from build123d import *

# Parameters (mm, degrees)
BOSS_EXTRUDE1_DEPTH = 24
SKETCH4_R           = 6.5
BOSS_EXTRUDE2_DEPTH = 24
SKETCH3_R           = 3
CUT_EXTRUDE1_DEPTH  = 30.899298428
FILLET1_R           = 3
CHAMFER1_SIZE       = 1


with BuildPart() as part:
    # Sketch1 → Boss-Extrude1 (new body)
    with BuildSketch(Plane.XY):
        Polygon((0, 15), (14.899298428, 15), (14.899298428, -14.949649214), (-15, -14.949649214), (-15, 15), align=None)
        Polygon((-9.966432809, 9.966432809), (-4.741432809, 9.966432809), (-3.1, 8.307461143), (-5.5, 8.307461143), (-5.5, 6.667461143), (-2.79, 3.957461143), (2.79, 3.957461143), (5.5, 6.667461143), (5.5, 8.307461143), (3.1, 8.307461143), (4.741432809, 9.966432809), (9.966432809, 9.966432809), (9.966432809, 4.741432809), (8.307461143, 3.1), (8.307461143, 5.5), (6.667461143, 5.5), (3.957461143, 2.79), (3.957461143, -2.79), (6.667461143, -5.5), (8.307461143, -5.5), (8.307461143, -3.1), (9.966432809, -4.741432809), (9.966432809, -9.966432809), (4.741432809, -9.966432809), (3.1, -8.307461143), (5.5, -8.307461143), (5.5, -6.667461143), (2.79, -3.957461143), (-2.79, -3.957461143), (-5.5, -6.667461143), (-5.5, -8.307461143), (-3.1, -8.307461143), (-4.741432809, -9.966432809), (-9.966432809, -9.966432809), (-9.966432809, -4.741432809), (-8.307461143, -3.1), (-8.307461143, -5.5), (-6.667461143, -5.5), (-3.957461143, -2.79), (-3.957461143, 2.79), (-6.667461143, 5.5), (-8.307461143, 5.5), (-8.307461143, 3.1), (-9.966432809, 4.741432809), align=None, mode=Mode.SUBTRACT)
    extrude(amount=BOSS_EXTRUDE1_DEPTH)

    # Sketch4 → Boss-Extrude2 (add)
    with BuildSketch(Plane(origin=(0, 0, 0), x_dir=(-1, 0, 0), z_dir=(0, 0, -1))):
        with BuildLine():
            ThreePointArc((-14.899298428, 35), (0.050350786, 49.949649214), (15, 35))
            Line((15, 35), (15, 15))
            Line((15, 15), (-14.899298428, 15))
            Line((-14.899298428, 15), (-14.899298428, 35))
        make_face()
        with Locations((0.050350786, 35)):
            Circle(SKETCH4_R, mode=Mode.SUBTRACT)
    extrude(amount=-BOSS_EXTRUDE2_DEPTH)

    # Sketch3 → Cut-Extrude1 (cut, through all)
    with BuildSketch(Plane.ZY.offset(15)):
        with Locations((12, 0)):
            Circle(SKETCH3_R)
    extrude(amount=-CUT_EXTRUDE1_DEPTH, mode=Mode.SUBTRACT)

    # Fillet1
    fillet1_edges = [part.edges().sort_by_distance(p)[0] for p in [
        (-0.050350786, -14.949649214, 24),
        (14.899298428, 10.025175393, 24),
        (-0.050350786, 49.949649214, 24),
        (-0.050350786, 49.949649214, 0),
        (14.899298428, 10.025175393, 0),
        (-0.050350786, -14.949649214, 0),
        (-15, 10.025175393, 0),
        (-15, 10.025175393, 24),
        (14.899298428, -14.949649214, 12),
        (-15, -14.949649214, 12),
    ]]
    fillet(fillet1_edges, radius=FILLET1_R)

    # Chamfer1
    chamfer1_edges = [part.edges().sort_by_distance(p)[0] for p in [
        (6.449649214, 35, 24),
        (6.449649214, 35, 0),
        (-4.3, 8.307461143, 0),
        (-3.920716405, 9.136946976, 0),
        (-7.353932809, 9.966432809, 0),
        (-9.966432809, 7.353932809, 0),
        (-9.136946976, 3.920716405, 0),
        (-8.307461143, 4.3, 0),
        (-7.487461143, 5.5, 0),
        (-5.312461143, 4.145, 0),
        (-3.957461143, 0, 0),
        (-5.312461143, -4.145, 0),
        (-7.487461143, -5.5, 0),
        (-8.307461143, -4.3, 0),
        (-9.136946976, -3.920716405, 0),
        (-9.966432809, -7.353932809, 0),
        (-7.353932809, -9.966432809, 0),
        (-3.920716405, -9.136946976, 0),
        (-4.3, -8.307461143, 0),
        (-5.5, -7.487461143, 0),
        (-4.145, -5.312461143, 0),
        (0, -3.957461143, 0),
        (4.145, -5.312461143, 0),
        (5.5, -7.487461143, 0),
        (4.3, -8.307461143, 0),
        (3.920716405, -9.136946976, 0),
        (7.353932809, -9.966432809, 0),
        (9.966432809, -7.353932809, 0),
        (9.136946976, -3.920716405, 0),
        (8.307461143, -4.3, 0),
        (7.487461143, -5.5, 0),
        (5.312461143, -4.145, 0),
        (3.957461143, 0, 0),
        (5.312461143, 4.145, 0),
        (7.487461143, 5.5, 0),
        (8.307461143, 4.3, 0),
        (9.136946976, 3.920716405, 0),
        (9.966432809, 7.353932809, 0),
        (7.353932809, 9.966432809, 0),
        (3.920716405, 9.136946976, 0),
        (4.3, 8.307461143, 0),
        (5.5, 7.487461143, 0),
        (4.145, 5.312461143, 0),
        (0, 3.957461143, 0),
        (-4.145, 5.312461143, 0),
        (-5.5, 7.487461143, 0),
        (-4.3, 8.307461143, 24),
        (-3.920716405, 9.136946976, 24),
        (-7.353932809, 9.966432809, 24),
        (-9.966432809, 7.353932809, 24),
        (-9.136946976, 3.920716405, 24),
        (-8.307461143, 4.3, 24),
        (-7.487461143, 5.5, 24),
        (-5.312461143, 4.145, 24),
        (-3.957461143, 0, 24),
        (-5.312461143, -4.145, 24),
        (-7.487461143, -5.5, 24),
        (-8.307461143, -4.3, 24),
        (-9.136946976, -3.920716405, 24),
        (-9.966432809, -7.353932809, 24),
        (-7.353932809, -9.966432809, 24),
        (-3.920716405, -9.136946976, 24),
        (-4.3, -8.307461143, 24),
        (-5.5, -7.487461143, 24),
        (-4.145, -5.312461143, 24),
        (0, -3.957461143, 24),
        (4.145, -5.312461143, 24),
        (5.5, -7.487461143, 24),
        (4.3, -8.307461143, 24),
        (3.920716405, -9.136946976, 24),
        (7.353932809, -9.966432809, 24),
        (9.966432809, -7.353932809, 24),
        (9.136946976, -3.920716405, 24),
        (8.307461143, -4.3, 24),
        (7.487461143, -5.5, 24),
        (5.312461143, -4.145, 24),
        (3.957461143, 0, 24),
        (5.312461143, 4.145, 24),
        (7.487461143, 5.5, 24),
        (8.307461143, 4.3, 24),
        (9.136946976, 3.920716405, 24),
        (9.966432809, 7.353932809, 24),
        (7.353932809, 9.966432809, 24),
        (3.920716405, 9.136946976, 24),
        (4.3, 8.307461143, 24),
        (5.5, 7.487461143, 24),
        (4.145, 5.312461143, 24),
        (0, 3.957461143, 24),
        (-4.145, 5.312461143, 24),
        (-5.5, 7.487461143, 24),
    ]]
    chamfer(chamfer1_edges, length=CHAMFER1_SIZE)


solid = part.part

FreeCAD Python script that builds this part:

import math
import FreeCAD as App
import Part
import Sketcher
from FreeCAD import Vector


def edges_at(feature, points):
    """Names of the edges that pass closest to the given points."""
    edges = feature.Shape.Edges
    near = lambda p: min(range(len(edges)), key=lambda i: edges[i].distToShape(Part.Vertex(*p))[0])
    return sorted({f"Edge{near(p) + 1}" for p in points})


def add_polygon(sketch, points):
    """Adds a closed chain of lines whose ends are joined by coincident constraints."""
    first, n = sketch.GeometryCount, len(points)
    for a, b in zip(points, points[1:] + points[:1]):
        sketch.addGeometry(Part.LineSegment(App.Vector(*a, 0), App.Vector(*b, 0)), False)
    for i in range(n):
        sketch.addConstraint(Sketcher.Constraint("Coincident", first + i, 2, first + (i + 1) % n, 1))

doc = App.newDocument("Part")
params = doc.addObject("Spreadsheet::Sheet", "Params")
for row, (alias, value) in enumerate([
    ("sketch1_width", "2.4 mm"),
    ("sketch1_width2", "5.58 mm"),
    ("sketch1_width3", "1.64 mm"),
    ("pad1_length", "24 mm"),
    ("sketch2_diameter", "13 mm"),
    ("sketch2_height", "20 mm"),
    ("pad2_length", "24 mm"),
    ("sketch3_diameter", "6 mm"),
    ("fillet_radius", "3 mm"),
    ("chamfer_size", "1 mm"),
], start=1):
    params.set(f"A{row}", alias)
    params.set(f"B{row}", "=" + value)
    params.setAlias(f"B{row}", alias)

body = doc.addObject("PartDesign::Body", "Body")

sketch1 = body.newObject("Sketcher::SketchObject", "Sketch")
sketch1.AttachmentSupport = (doc.getObject("XY_Plane"), [""])
sketch1.MapMode = "FlatFace"
add_polygon(sketch1, [(14.899298, 15), (-15, 15), (-15, -14.949649), (14.899298, -14.949649)])
add_polygon(sketch1, [(-9.966433, 9.966433), (-4.741433, 9.966433), (-3.1, 8.307461), (-5.5, 8.307461), (-5.5, 6.667461), (-2.79, 3.957461), (2.79, 3.957461), (5.5, 6.667461), (5.5, 8.307461), (3.1, 8.307461), (4.741433, 9.966433), (9.966433, 9.966433), (9.966433, 4.741433), (8.307461, 3.1), (8.307461, 5.5), (6.667461, 5.5), (3.957461, 2.79), (3.957461, -2.79), (6.667461, -5.5), (8.307461, -5.5), (8.307461, -3.1), (9.966433, -4.741433), (9.966433, -9.966433), (4.741433, -9.966433), (3.1, -8.307461), (5.5, -8.307461), (5.5, -6.667461), (2.79, -3.957461), (-2.79, -3.957461), (-5.5, -6.667461), (-5.5, -8.307461), (-3.1, -8.307461), (-4.741433, -9.966433), (-9.966433, -9.966433), (-9.966433, -4.741433), (-8.307461, -3.1), (-8.307461, -5.5), (-6.667461, -5.5), (-3.957461, -2.79), (-3.957461, 2.79), (-6.667461, 5.5), (-8.307461, 5.5), (-8.307461, 3.1), (-9.966433, 4.741433)])
sketch1.addConstraint([
    Sketcher.Constraint("Horizontal", 0),
    Sketcher.Constraint("Vertical", 1),
    Sketcher.Constraint("Horizontal", 2),
    Sketcher.Constraint("Vertical", 3),
    Sketcher.Constraint("Horizontal", 4),
    Sketcher.Constraint("Horizontal", 6),
    Sketcher.Constraint("Vertical", 7),
    Sketcher.Constraint("Horizontal", 9),
    Sketcher.Constraint("Vertical", 11),
    Sketcher.Constraint("Horizontal", 12),
    Sketcher.Constraint("Horizontal", 14),
    Sketcher.Constraint("Vertical", 15),
    Sketcher.Constraint("Vertical", 17),
    Sketcher.Constraint("Horizontal", 18),
    Sketcher.Constraint("Vertical", 20),
    Sketcher.Constraint("Horizontal", 22),
    Sketcher.Constraint("Vertical", 23),
    Sketcher.Constraint("Vertical", 25),
    Sketcher.Constraint("Horizontal", 26),
    Sketcher.Constraint("Horizontal", 28),
    Sketcher.Constraint("Vertical", 29),
    Sketcher.Constraint("Horizontal", 31),
    Sketcher.Constraint("Vertical", 33),
    Sketcher.Constraint("Horizontal", 34),
    Sketcher.Constraint("Horizontal", 36),
    Sketcher.Constraint("Vertical", 37),
    Sketcher.Constraint("Vertical", 39),
    Sketcher.Constraint("Horizontal", 40),
    Sketcher.Constraint("Vertical", 42),
    Sketcher.Constraint("Horizontal", 44),
    Sketcher.Constraint("Vertical", 45),
    Sketcher.Constraint("Vertical", 47),
    Sketcher.Constraint("Symmetric", 4, 2, 26, 2, -1, 1),
    Sketcher.Constraint("Symmetric", 5, 2, 27, 2, -1, 1),
    Sketcher.Constraint("Symmetric", 7, 2, 29, 2, -1, 1),
    Sketcher.Constraint("Symmetric", 8, 2, 30, 2, -1, 1),
    Sketcher.Constraint("Symmetric", 10, 2, 32, 2, -1, 1),
    Sketcher.Constraint("Symmetric", 12, 2, 34, 2, -1, 1),
    Sketcher.Constraint("Symmetric", 13, 2, 35, 2, -1, 1),
    Sketcher.Constraint("Symmetric", 15, 2, 37, 2, -1, 1),
    Sketcher.Constraint("Symmetric", 16, 2, 38, 2, -1, 1),
    Sketcher.Constraint("Symmetric", 18, 2, 40, 2, -1, 1),
    Sketcher.Constraint("Symmetric", 19, 2, 41, 2, -1, 1),
    Sketcher.Constraint("Symmetric", 21, 2, 43, 2, -1, 1),
    Sketcher.Constraint("Symmetric", 23, 2, 45, 2, -1, 1),
    Sketcher.Constraint("Symmetric", 24, 2, 46, 2, -1, 1),
    Sketcher.Constraint("Symmetric", 7, 2, 10, 2, -2),
    Sketcher.Constraint("Symmetric", 5, 2, 12, 2, -2),
    Sketcher.Constraint("Symmetric", 4, 2, 13, 2, -2),
    Sketcher.Constraint("Symmetric", 24, 2, 37, 2, -2),
    Sketcher.Constraint("Symmetric", 23, 2, 38, 2, -2),
    Sketcher.Constraint("Symmetric", 21, 2, 40, 2, -2),
    Sketcher.Constraint("Perpendicular", 8, 10),
    Sketcher.Constraint("Perpendicular", 5, 16),
    Sketcher.Constraint("Parallel", 10, 19),
    Sketcher.Constraint("Perpendicular", 19, 21),
    Sketcher.Constraint("Perpendicular", 30, 32),
    Sketcher.Constraint("Perpendicular", 41, 43),
    Sketcher.Constraint("Horizontal", 20, 2, 41, 2),
    Sketcher.Constraint("Equal", 44, 7),
    Sketcher.Constraint("Equal", 36, 15),
    Sketcher.Constraint("Equal", 34, 17),
    Sketcher.Constraint("Equal", 31, 20),
    Sketcher.Constraint("Equal", 13, 16),
    Sketcher.Constraint("Equal", 10, 19),
    Sketcher.Constraint("DistanceX", 6, 2, 6, 1, 2.4),
    Sketcher.Constraint("DistanceX", 0, 2, -1, 1, 15.0),
    Sketcher.Constraint("DistanceY", -1, 1, 0, 2, 15.0),
    Sketcher.Constraint("DistanceX", 7, 2, 10, 2, 11.0),
    Sketcher.Constraint("DistanceX", 9, 1, 9, 2, 5.58),
    Sketcher.Constraint("DistanceX", 18, 2, 18, 1, 1.64),
    Sketcher.Constraint("DistanceX", 4, 1, 4, 2, 5.225),
    Sketcher.Constraint("DistanceX", 0, 2, 0, 1, 29.899298),
    Sketcher.Constraint("DistanceY", 1, 2, 1, 1, 29.949649),
    Sketcher.Constraint("Distance", 5, 2.333771),
    Sketcher.Constraint("DistanceY", -1, 1, 5, 2, 8.307461),
])
sketch1.setExpression("Constraints[113]", "Params.sketch1_width")
sketch1.setExpression("Constraints[117]", "Params.sketch1_width2")
sketch1.setExpression("Constraints[118]", "Params.sketch1_width3")
pad1 = body.newObject("PartDesign::Pad", "Pad")
pad1.Profile = sketch1
pad1.setExpression("Length", "Params.pad1_length")

sketch2 = body.newObject("Sketcher::SketchObject", "Sketch001")
sketch2.AttachmentSupport = (doc.getObject("XY_Plane"), [""])
sketch2.MapMode = "FlatFace"
sketch2.addGeometry([
    Part.ArcOfCircle(Part.Circle(Vector(-0.050351, 35, 0), Vector(0, 0, 1), 14.949649), math.radians(0), math.radians(180)),
    Part.LineSegment(Vector(14.899298, 35, 0), Vector(14.899298, 15, 0)),
    Part.LineSegment(Vector(14.899298, 15, 0), Vector(-15, 15, 0)),
    Part.LineSegment(Vector(-15, 15, 0), Vector(-15, 35, 0)),
    Part.Circle(Vector(-0.050351, 35, 0), Vector(0, 0, 1), 6.5),
], False)
sketch2.addConstraint([
    Sketcher.Constraint("Tangent", 0, 1, 1, 1),
    Sketcher.Constraint("Coincident", 1, 2, 2, 1),
    Sketcher.Constraint("Coincident", 2, 2, 3, 1),
    Sketcher.Constraint("Tangent", 3, 2, 0, 2),
    Sketcher.Constraint("Vertical", 1),
    Sketcher.Constraint("Horizontal", 2),
    Sketcher.Constraint("Vertical", 3),
    Sketcher.Constraint("Coincident", 4, 3, 0, 3),
    Sketcher.Constraint("Diameter", 4, 13.0),
    Sketcher.Constraint("DistanceY", 1, 2, 1, 1, 20.0),
    Sketcher.Constraint("DistanceY", -1, 1, 0, 3, 35.0),
    Sketcher.Constraint("DistanceX", 2, 2, -1, 1, 15.0),
    Sketcher.Constraint("Radius", 0, 14.949649),
])
sketch2.setExpression("Constraints[8]", "Params.sketch2_diameter")
sketch2.setExpression("Constraints[9]", "Params.sketch2_height")
pad2 = body.newObject("PartDesign::Pad", "Pad001")
pad2.Profile = sketch2
pad2.setExpression("Length", "Params.pad2_length")

sketch3 = body.newObject("Sketcher::SketchObject", "Sketch002")
sketch3.AttachmentSupport = (doc.getObject("YZ_Plane"), [""])
sketch3.MapMode = "FlatFace"
sketch3.AttachmentOffset = App.Placement(Vector(0, 0, -15), App.Rotation())
sketch3.addGeometry(Part.Circle(Vector(0, 12, 0), Vector(0, 0, 1), 3), False)
sketch3.addConstraint([
    Sketcher.Constraint("PointOnObject", 0, 3, -2),
    Sketcher.Constraint("Diameter", 0, 6.0),
    Sketcher.Constraint("DistanceY", -1, 1, 0, 3, 12.0),
])
sketch3.setExpression("Constraints[1]", "Params.sketch3_diameter")
pocket1 = body.newObject("PartDesign::Pocket", "Pocket")
pocket1.Profile = sketch3
pocket1.Type = "ThroughAll"
pocket1.Reversed = True
doc.recompute()

fillet = body.newObject("PartDesign::Fillet", "Fillet")
fillet.Base = (pocket1, edges_at(pocket1, [
    (-0.05, -14.95, 24),
    (14.899, 10.025, 24),
    (-0.05, 49.95, 24),
    (-0.05, 49.95, 0),
    (14.899, 10.025, 0),
    (-0.05, -14.95, 0),
    (-15, 10.025, 0),
    (-15, 10.025, 24),
    (14.899, -14.95, 12),
    (-15, -14.95, 12),
]))
fillet.setExpression("Radius", "Params.fillet_radius")
doc.recompute()

chamfer = body.newObject("PartDesign::Chamfer", "Chamfer")
chamfer.Base = (fillet, edges_at(fillet, [
    (6.45, 35, 24),
    (6.45, 35, 0),
    (-4.3, 8.307, 0),
    (-3.921, 9.137, 0),
    (-7.354, 9.966, 0),
    (-9.966, 7.354, 0),
    (-9.137, 3.921, 0),
    (-8.307, 4.3, 0),
    (-7.487, 5.5, 0),
    (-5.312, 4.145, 0),
    (-3.957, 0, 0),
    (-5.312, -4.145, 0),
    (-7.487, -5.5, 0),
    (-8.307, -4.3, 0),
    (-9.137, -3.921, 0),
    (-9.966, -7.354, 0),
    (-7.354, -9.966, 0),
    (-3.921, -9.137, 0),
    (-4.3, -8.307, 0),
    (-5.5, -7.487, 0),
    (-4.145, -5.312, 0),
    (0, -3.957, 0),
    (4.145, -5.312, 0),
    (5.5, -7.487, 0),
    (4.3, -8.307, 0),
    (3.921, -9.137, 0),
    (7.354, -9.966, 0),
    (9.966, -7.354, 0),
    (9.137, -3.921, 0),
    (8.307, -4.3, 0),
    (7.487, -5.5, 0),
    (5.312, -4.145, 0),
    (3.957, 0, 0),
    (5.312, 4.145, 0),
    (7.487, 5.5, 0),
    (8.307, 4.3, 0),
    (9.137, 3.921, 0),
    (9.966, 7.354, 0),
    (7.354, 9.966, 0),
    (3.921, 9.137, 0),
    (4.3, 8.307, 0),
    (5.5, 7.487, 0),
    (4.145, 5.312, 0),
    (0, 3.957, 0),
    (-4.145, 5.312, 0),
    (-5.5, 7.487, 0),
    (-4.3, 8.307, 24),
    (-3.921, 9.137, 24),
    (-7.354, 9.966, 24),
    (-9.966, 7.354, 24),
    (-9.137, 3.921, 24),
    (-8.307, 4.3, 24),
    (-7.487, 5.5, 24),
    (-5.312, 4.145, 24),
    (-3.957, 0, 24),
    (-5.312, -4.145, 24),
    (-7.487, -5.5, 24),
    (-8.307, -4.3, 24),
    (-9.137, -3.921, 24),
    (-9.966, -7.354, 24),
    (-7.354, -9.966, 24),
    (-3.921, -9.137, 24),
    (-4.3, -8.307, 24),
    (-5.5, -7.487, 24),
    (-4.145, -5.312, 24),
    (0, -3.957, 24),
    (4.145, -5.312, 24),
    (5.5, -7.487, 24),
    (4.3, -8.307, 24),
    (3.921, -9.137, 24),
    (7.354, -9.966, 24),
    (9.966, -7.354, 24),
    (9.137, -3.921, 24),
    (8.307, -4.3, 24),
    (7.487, -5.5, 24),
    (5.312, -4.145, 24),
    (3.957, 0, 24),
    (5.312, 4.145, 24),
    (7.487, 5.5, 24),
    (8.307, 4.3, 24),
    (9.137, 3.921, 24),
    (9.966, 7.354, 24),
    (7.354, 9.966, 24),
    (3.921, 9.137, 24),
    (4.3, 8.307, 24),
    (5.5, 7.487, 24),
    (4.145, 5.312, 24),
    (0, 3.957, 24),
    (-4.145, 5.312, 24),
    (-5.5, 7.487, 24),
]))
chamfer.setExpression("Size", "Params.chamfer_size")

doc.recompute()
